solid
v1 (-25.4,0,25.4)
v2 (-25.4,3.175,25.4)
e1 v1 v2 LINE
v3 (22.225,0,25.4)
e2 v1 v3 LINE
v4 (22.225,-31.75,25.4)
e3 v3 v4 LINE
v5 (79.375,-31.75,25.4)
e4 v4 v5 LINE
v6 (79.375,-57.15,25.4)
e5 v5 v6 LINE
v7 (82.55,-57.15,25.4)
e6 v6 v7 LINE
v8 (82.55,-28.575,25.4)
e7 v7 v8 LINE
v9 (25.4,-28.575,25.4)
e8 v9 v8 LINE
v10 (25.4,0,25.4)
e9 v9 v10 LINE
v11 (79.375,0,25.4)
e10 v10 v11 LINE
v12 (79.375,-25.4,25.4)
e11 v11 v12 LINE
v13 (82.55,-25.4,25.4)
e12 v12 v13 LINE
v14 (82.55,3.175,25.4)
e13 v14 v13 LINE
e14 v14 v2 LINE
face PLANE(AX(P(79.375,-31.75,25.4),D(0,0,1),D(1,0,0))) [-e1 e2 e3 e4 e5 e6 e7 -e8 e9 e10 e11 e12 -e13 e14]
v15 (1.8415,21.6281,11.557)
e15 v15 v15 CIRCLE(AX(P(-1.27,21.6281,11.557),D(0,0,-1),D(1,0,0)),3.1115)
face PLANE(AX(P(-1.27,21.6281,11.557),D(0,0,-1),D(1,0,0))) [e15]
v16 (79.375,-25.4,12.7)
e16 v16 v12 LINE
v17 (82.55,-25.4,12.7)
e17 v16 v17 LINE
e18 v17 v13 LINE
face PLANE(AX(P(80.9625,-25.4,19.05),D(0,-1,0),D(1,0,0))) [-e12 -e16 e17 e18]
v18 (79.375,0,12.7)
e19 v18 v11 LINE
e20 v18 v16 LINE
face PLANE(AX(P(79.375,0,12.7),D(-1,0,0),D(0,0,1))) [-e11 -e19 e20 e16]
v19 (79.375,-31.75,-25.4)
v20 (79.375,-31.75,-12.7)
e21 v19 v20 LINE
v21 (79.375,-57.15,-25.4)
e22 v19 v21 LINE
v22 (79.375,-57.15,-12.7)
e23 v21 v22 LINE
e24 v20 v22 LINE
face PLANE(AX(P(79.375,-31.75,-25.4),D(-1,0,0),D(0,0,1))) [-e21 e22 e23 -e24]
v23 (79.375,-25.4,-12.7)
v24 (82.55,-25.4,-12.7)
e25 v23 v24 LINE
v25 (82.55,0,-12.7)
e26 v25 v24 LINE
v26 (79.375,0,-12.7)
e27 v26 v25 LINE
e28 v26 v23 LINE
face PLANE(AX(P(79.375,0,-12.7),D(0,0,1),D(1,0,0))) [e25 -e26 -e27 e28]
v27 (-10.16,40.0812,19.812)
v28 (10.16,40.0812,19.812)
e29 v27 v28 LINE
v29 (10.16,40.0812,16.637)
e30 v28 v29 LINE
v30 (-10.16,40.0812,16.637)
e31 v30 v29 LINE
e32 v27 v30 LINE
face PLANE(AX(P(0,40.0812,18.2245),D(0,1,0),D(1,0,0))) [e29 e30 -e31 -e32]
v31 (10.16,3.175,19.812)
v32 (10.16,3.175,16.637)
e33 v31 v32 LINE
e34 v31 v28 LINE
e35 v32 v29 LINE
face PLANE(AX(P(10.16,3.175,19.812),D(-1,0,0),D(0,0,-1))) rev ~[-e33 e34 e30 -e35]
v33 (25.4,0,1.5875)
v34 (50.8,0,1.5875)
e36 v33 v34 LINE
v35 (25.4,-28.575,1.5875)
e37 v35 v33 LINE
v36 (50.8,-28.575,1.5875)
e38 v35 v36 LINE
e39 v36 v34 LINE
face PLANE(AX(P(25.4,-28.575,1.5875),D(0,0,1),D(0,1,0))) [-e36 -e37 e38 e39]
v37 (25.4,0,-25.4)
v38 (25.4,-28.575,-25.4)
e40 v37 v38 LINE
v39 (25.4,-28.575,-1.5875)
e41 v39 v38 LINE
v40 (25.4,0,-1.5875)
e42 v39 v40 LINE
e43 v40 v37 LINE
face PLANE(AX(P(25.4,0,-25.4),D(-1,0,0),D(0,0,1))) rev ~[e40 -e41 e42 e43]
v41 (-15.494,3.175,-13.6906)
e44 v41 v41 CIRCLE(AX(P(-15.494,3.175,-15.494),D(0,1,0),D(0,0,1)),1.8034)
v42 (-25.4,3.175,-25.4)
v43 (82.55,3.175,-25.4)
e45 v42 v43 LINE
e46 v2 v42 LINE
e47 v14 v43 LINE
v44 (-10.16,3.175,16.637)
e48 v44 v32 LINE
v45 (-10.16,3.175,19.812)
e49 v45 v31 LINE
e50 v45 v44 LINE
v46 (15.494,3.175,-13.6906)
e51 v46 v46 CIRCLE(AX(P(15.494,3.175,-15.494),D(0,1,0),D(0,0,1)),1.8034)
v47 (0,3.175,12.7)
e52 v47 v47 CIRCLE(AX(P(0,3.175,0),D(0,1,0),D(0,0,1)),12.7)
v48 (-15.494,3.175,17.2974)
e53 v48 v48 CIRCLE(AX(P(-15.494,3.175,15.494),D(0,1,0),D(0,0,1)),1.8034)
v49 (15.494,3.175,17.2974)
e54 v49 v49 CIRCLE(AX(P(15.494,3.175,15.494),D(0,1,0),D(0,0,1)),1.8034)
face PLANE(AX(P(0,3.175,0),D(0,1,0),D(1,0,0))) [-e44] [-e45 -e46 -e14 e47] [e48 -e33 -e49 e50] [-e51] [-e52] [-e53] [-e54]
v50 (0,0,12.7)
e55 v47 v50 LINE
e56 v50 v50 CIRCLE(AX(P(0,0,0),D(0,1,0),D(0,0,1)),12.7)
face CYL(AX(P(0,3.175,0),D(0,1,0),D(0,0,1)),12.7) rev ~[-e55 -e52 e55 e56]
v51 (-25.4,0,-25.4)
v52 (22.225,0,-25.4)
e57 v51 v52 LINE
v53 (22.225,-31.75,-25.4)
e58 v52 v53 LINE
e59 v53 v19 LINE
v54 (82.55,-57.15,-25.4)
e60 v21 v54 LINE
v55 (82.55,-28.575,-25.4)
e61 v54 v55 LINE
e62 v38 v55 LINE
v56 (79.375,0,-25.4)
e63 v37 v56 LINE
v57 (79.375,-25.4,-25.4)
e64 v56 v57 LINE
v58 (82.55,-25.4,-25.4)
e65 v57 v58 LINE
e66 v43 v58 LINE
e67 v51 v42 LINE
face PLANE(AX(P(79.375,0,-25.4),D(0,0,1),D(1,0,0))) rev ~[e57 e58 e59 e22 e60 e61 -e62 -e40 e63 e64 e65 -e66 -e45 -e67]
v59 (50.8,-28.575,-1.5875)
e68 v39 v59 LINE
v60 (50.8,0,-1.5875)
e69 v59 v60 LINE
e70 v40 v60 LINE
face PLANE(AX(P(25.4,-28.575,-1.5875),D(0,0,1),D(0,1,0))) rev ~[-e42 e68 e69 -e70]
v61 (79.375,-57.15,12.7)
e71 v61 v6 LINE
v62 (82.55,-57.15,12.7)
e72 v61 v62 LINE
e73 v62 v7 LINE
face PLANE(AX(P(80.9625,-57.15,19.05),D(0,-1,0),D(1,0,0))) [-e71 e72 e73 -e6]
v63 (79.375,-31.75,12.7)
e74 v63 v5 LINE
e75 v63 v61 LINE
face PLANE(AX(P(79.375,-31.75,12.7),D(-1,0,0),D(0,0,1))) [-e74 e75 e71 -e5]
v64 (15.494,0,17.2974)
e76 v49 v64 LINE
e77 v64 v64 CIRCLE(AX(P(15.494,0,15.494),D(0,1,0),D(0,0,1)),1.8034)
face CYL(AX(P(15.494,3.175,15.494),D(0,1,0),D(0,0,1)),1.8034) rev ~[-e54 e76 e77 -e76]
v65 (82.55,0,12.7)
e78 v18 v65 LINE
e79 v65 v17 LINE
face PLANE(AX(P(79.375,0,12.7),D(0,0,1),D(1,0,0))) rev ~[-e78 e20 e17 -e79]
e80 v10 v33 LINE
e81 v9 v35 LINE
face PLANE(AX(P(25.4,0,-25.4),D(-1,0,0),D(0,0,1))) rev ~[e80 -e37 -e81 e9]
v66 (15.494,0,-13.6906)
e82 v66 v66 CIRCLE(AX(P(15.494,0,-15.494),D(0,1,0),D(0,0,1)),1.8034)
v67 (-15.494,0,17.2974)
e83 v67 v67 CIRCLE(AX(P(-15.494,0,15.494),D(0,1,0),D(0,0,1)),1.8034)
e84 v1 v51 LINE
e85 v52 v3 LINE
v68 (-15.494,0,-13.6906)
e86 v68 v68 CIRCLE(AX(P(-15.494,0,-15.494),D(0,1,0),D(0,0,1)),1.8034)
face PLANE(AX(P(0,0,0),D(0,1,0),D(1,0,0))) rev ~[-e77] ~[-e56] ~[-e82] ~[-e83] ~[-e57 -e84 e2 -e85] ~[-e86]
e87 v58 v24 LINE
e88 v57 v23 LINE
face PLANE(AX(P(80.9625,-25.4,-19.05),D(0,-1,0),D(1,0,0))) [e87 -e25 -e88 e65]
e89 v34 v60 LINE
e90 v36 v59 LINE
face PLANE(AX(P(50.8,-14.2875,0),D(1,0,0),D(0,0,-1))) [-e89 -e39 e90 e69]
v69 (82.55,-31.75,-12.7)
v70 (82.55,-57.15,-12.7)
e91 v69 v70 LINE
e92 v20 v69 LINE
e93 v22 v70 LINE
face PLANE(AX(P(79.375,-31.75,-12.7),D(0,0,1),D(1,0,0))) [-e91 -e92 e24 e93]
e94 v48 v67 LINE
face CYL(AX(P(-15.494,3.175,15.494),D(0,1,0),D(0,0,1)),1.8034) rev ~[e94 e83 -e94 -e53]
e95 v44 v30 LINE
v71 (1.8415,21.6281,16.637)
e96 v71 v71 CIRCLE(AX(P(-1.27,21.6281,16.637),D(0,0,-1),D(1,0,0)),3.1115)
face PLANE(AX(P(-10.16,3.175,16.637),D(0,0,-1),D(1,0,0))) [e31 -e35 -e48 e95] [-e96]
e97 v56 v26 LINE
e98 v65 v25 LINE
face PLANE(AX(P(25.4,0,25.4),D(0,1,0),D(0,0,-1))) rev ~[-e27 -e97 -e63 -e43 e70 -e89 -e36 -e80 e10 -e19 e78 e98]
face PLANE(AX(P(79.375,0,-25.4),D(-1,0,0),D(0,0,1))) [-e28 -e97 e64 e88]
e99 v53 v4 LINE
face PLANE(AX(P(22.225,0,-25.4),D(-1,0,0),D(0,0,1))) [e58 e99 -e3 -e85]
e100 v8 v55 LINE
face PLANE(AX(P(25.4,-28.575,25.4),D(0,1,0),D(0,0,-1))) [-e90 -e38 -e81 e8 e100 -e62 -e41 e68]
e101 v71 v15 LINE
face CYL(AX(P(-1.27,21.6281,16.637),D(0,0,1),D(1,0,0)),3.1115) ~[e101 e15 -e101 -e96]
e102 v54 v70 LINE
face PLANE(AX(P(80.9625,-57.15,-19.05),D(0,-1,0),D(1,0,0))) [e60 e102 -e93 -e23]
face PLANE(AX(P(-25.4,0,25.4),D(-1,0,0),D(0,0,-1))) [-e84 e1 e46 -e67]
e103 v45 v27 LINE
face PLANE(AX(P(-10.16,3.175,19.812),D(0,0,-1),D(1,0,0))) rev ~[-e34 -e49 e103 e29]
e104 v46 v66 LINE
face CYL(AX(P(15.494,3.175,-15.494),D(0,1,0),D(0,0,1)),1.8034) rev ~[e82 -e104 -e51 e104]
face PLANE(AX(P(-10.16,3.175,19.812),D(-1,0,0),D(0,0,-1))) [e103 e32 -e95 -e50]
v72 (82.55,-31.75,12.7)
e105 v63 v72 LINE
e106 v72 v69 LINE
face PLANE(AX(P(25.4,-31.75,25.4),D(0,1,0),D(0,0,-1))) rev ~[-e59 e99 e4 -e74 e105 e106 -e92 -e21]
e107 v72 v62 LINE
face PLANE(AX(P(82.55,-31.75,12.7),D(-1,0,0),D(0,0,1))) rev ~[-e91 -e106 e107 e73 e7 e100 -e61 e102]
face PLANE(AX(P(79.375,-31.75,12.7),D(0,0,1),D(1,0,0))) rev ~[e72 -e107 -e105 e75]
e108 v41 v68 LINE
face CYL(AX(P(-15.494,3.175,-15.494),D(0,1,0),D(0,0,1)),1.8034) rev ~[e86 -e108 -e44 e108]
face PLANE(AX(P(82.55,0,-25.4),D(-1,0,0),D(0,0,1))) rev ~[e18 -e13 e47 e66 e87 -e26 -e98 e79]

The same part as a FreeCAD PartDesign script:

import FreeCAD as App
import Part
import Sketcher
from FreeCAD import Vector
Q = App.Units.Quantity

doc = App.newDocument("Part")
body = doc.addObject("PartDesign::Body", "Body")

sketch1 = body.newObject("Sketcher::SketchObject", "Sketch")
sketch1.AttachmentSupport = (doc.getObject("XZ_Plane"), [""])
sketch1.MapMode = "FlatFace"
sketch1.addGeometry([
    Part.LineSegment(Vector(-25, -25, 0), Vector(-25, 25, 0)),
    Part.LineSegment(Vector(-25, 25, 0), Vector(25, 25, 0)),
    Part.LineSegment(Vector(25, 25, 0), Vector(25, -25, 0)),
    Part.LineSegment(Vector(25, -25, 0), Vector(-25, -25, 0)),
], False)
sketch1.addConstraint([
    Sketcher.Constraint("Coincident", 0, 2, 1, 1),
    Sketcher.Constraint("Coincident", 1, 2, 2, 1),
    Sketcher.Constraint("Coincident", 2, 2, 3, 1),
    Sketcher.Constraint("Coincident", 3, 2, 0, 1),
    Sketcher.Constraint("Vertical", 0),
    Sketcher.Constraint("Horizontal", 1),
    Sketcher.Constraint("Vertical", 2),
    Sketcher.Constraint("Horizontal", 3),
    Sketcher.Constraint("Symmetric", 0, 2, 2, 2, -1, 1),
    Sketcher.Constraint("Equal", 3, 0),
    Sketcher.Constraint("DistanceX", 1, 1, 1, 2, Q("2 in")),
])
pad1 = body.newObject("PartDesign::Pad", "Pad")
pad1.Profile = sketch1
pad1.Length = Q("0.125 in")
pad1.Reversed = True

sketch2 = body.newObject("Sketcher::SketchObject", "Sketch001")
sketch2.AttachmentSupport = (doc.getObject("XZ_Plane"), [""])
sketch2.MapMode = "FlatFace"
sketch2.AttachmentOffset = App.Placement(Vector(0, 0, -0.125 * 25.4), App.Rotation())
sketch2.addGeometry([
    Part.Circle(Vector(0, 0, 0), Vector(0, 0, 1), 12.7),
    Part.Circle(Vector(-15.5, -15.5, 0), Vector(0, 0, 1), 1.8),
    Part.Circle(Vector(15.5, -15.5, 0), Vector(0, 0, 1), 1.8),
    Part.Circle(Vector(15.5, 15.5, 0), Vector(0, 0, 1), 1.8),
    Part.Circle(Vector(-15.5, 15.5, 0), Vector(0, 0, 1), 1.8),
], False)
sketch2.addConstraint([
    Sketcher.Constraint("Coincident", 0, 3, -1, 1),
    Sketcher.Constraint("Equal", 1, 2),
    Sketcher.Constraint("Equal", 2, 3),
    Sketcher.Constraint("Equal", 3, 4),
    Sketcher.Constraint("Symmetric", 1, 3, 3, 3, -1, 1),
    Sketcher.Constraint("Symmetric", 2, 3, 4, 3, -1, 1),
    Sketcher.Constraint("Symmetric", 1, 3, 2, 3, -2),
    Sketcher.Constraint("Diameter", 0, Q("1 in")),
    Sketcher.Constraint("Diameter", 1, Q("0.142 in")),
    Sketcher.Constraint("DistanceX", 1, 3, -1, 1, Q("0.61 in")),
    Sketcher.Constraint("DistanceY", 1, 3, -1, 1, Q("0.61 in")),
])
pocket1 = body.newObject("PartDesign::Pocket", "Pocket")
pocket1.Profile = sketch2
pocket1.Type = "ThroughAll"
pocket1.Reversed = True

sketch3 = body.newObject("Sketcher::SketchObject", "Sketch002")
sketch3.AttachmentSupport = (doc.getObject("XZ_Plane"), [""])
sketch3.MapMode = "FlatFace"
sketch3.AttachmentOffset = App.Placement(Vector(0, 0, -0.125 * 25.4), App.Rotation())
sketch3.addGeometry([
    Part.LineSegment(Vector(-10.2, 16.6, 0), Vector(-10.2, 19.8, 0)),
    Part.LineSegment(Vector(-10.2, 19.8, 0), Vector(10.2, 19.8, 0)),
    Part.LineSegment(Vector(10.2, 19.8, 0), Vector(10.2, 16.6, 0)),
    Part.LineSegment(Vector(10.2, 16.6, 0), Vector(-10.2, 16.6, 0)),
], False)
sketch3.addConstraint([
    Sketcher.Constraint("Coincident", 0, 2, 1, 1),
    Sketcher.Constraint("Coincident", 1, 2, 2, 1),
    Sketcher.Constraint("Coincident", 2, 2, 3, 1),
    Sketcher.Constraint("Coincident", 3, 2, 0, 1),
    Sketcher.Constraint("Vertical", 0),
    Sketcher.Constraint("Horizontal", 1),
    Sketcher.Constraint("Vertical", 2),
    Sketcher.Constraint("Horizontal", 3),
    Sketcher.Constraint("DistanceX", 1, 1, 1, 2, Q("0.8 in")),
    Sketcher.Constraint("DistanceX", 0, 2, -1, 1, Q("0.4 in")),
    Sketcher.Constraint("DistanceY", 0, 1, 0, 2, Q("0.125 in")),
    Sketcher.Constraint("DistanceY", -1, 1, 0, 2, Q("0.78 in")),
])
pad2 = body.newObject("PartDesign::Pad", "Pad001")
pad2.Profile = sketch3
pad2.Length = Q("1.453 in")
pad2.Reversed = True

sketch4 = body.newObject("Sketcher::SketchObject", "Sketch003")
sketch4.AttachmentSupport = (doc.getObject("XY_Plane"), [""])
sketch4.MapMode = "FlatFace"
sketch4.AttachmentOffset = App.Placement(Vector(0, 0, 0.655 * 25.4), App.Rotation())
sketch4.addGeometry(Part.Circle(Vector(-1.3, 21.6, 0), Vector(0, 0, 1), 3.1), False)
sketch4.addConstraint([
    Sketcher.Constraint("Diameter", 0, Q("0.245 in")),
    Sketcher.Constraint("DistanceX", 0, 3, -1, 1, Q("0.05 in")),
    Sketcher.Constraint("DistanceY", -1, 1, 0, 3, Q("0.8515 in")),
])
pad3 = body.newObject("PartDesign::Pad", "Pad002")
pad3.Profile = sketch4
pad3.Length = Q("0.2 in")
pad3.Reversed = True

sketch5 = body.newObject("Sketcher::SketchObject", "Sketch004")
sketch5.AttachmentSupport = (doc.getObject("XZ_Plane"), [""])
sketch5.MapMode = "FlatFace"
sketch5.addGeometry([
    Part.LineSegment(Vector(22.2, 25.4, 0), Vector(22.2, -25.4, 0)),
    Part.LineSegment(Vector(22.2, -25.4, 0), Vector(25.4, -25.4, 0)),
    Part.LineSegment(Vector(25.4, -25.4, 0), Vector(25.4, 25.4, 0)),
    Part.LineSegment(Vector(25.4, 25.4, 0), Vector(22.2, 25.4, 0)),
], False)
sketch5.addConstraint([
    Sketcher.Constraint("Coincident", 0, 2, 1, 1),
    Sketcher.Constraint("Coincident", 1, 2, 2, 1),
    Sketcher.Constraint("Coincident", 2, 2, 3, 1),
    Sketcher.Constraint("Coincident", 3, 2, 0, 1),
    Sketcher.Constraint("Vertical", 0),
    Sketcher.Constraint("Horizontal", 1),
    Sketcher.Constraint("Vertical", 2),
    Sketcher.Constraint("Horizontal", 3),
    Sketcher.Constraint("DistanceY", 0, 2, 0, 1, Q("2 in")),
    Sketcher.Constraint("DistanceY", 0, 2, -1, 1, Q("1 in")),
    Sketcher.Constraint("DistanceX", -1, 1, 1, 2, Q("1 in")),
    Sketcher.Constraint("DistanceX", 1, 1, 1, 2, Q("0.125 in")),
])
pad4 = body.newObject("PartDesign::Pad", "Pad003")
pad4.Profile = sketch5
pad4.Length = Q("1.25 in")

sketch6 = body.newObject("Sketcher::SketchObject", "Sketch005")
sketch6.AttachmentSupport = (doc.getObject("YZ_Plane"), [""])
sketch6.MapMode = "FlatFace"
sketch6.AttachmentOffset = App.Placement(Vector(0, 0, 1 * 25.4), App.Rotation())
sketch6.addGeometry([
    Part.LineSegment(Vector(-28.6, 25.4, 0), Vector(-31.8, 25.4, 0)),
    Part.LineSegment(Vector(-31.8, 25.4, 0), Vector(-31.8, -25.4, 0)),
    Part.LineSegment(Vector(-31.8, -25.4, 0), Vector(-28.6, -25.4, 0)),
    Part.LineSegment(Vector(-28.6, -25.4, 0), Vector(-28.6, 25.4, 0)),
    Part.LineSegment(Vector(3.2, 25.4, 0), Vector(0, 25.4, 0)),
    Part.LineSegment(Vector(0, 25.4, 0), Vector(0, -25.4, 0)),
    Part.LineSegment(Vector(0, -25.4, 0), Vector(3.2, -25.4, 0)),
    Part.LineSegment(Vector(3.2, -25.4, 0), Vector(3.2, 25.4, 0)),
], False)
sketch6.addConstraint([
    Sketcher.Constraint("Coincident", 0, 2, 1, 1),
    Sketcher.Constraint("Coincident", 1, 2, 2, 1),
    Sketcher.Constraint("Coincident", 2, 2, 3, 1),
    Sketcher.Constraint("Coincident", 3, 2, 0, 1),
    Sketcher.Constraint("Coincident", 4, 2, 5, 1),
    Sketcher.Constraint("Coincident", 5, 2, 6, 1),
    Sketcher.Constraint("Coincident", 6, 2, 7, 1),
    Sketcher.Constraint("Coincident", 7, 2, 4, 1),
    Sketcher.Constraint("Horizontal", 0),
    Sketcher.Constraint("Vertical", 1),
    Sketcher.Constraint("Horizontal", 2),
    Sketcher.Constraint("Vertical", 3),
    Sketcher.Constraint("Horizontal", 4),
    Sketcher.Constraint("Vertical", 5),
    Sketcher.Constraint("Horizontal", 6),
    Sketcher.Constraint("Vertical", 7),
    Sketcher.Constraint("Symmetric", 4, 2, 5, 2, -1, 1),
    Sketcher.Constraint("Horizontal", 3, 2, 4, 2),
    Sketcher.Constraint("Horizontal", 2, 2, 5, 2),
    Sketcher.Constraint("Equal", 2, 4),
    Sketcher.Constraint("DistanceY", 1, 2, 1, 1, Q("2 in")),
    Sketcher.Constraint("DistanceX", 0, 2, 0, 1, Q("0.125 in")),
    Sketcher.Constraint("DistanceX", 0, 2, -1, 1, Q("1.25 in")),
])
pad5 = body.newObject("PartDesign::Pad", "Pad004")
pad5.Profile = sketch6
pad5.Length = Q("2.25 in")

sketch7 = body.newObject("Sketcher::SketchObject", "Sketch006")
sketch7.AttachmentSupport = (doc.getObject("XZ_Plane"), [""])
sketch7.MapMode = "FlatFace"
sketch7.AttachmentOffset = App.Placement(Vector(0, 0, 1.25 * 25.4), App.Rotation())
sketch7.addGeometry([
    Part.LineSegment(Vector(79.4, 25.4, 0), Vector(79.4, 12.7, 0)),
    Part.LineSegment(Vector(79.4, 12.7, 0), Vector(82.5, 12.7, 0)),
    Part.LineSegment(Vector(82.5, 12.7, 0), Vector(82.5, 25.4, 0)),
    Part.LineSegment(Vector(82.5, 25.4, 0), Vector(79.4, 25.4, 0)),
    Part.LineSegment(Vector(79.4, -12.7, 0), Vector(79.4, -25.4, 0)),
    Part.LineSegment(Vector(79.4, -25.4, 0), Vector(82.5, -25.4, 0)),
    Part.LineSegment(Vector(82.5, -25.4, 0), Vector(82.5, -12.7, 0)),
    Part.LineSegment(Vector(82.5, -12.7, 0), Vector(79.4, -12.7, 0)),
], False)
sketch7.addConstraint([
    Sketcher.Constraint("Coincident", 0, 2, 1, 1),
    Sketcher.Constraint("Coincident", 1, 2, 2, 1),
    Sketcher.Constraint("Coincident", 2, 2, 3, 1),
    Sketcher.Constraint("Coincident", 3, 2, 0, 1),
    Sketcher.Constraint("Coincident", 4, 2, 5, 1),
    Sketcher.Constraint("Coincident", 5, 2, 6, 1),
    Sketcher.Constraint("Coincident", 6, 2, 7, 1),
    Sketcher.Constraint("Coincident", 7, 2, 4, 1),
    Sketcher.Constraint("Vertical", 0),
    Sketcher.Constraint("Horizontal", 1),
    Sketcher.Constraint("Vertical", 2),
    Sketcher.Constraint("Horizontal", 3),
    Sketcher.Constraint("Vertical", 4),
    Sketcher.Constraint("Horizontal", 5),
    Sketcher.Constraint("Vertical", 6),
    Sketcher.Constraint("Horizontal", 7),
    Sketcher.Constraint("Symmetric", 3, 2, 4, 2, -1),
    Sketcher.Constraint("Symmetric", 1, 2, 6, 2, -1),
    Sketcher.Constraint("DistanceY", 0, 2, 0, 1, Q("0.5 in")),
    Sketcher.Constraint("DistanceY", -1, 1, 2, 2, Q("1 in")),
    Sketcher.Constraint("DistanceX", 1, 1, 1, 2, Q("0.125 in")),
    Sketcher.Constraint("DistanceX", -1, 1, 1, 2, Q("3.25 in")),
])
pad6 = body.newObject("PartDesign::Pad", "Pad005")
pad6.Profile = sketch7
pad6.Length = Q("1 in")

sketch8 = body.newObject("Sketcher::SketchObject", "Sketch007")
sketch8.AttachmentSupport = (doc.getObject("XZ_Plane"), [""])
sketch8.MapMode = "FlatFace"
sketch8.addGeometry([
    Part.LineSegment(Vector(79.4, -12.7, 0), Vector(79.4, -25.4, 0)),
    Part.LineSegment(Vector(79.4, -25.4, 0), Vector(82.5, -25.4, 0)),
    Part.LineSegment(Vector(82.5, -25.4, 0), Vector(82.5, -12.7, 0)),
    Part.LineSegment(Vector(82.5, -12.7, 0), Vector(79.4, -12.7, 0)),
    Part.LineSegment(Vector(79.4, 25.4, 0), Vector(79.4, 12.7, 0)),
    Part.LineSegment(Vector(79.4, 12.7, 0), Vector(82.5, 12.7, 0)),
    Part.LineSegment(Vector(82.5, 12.7, 0), Vector(82.5, 25.4, 0)),
    Part.LineSegment(Vector(82.5, 25.4, 0), Vector(79.4, 25.4, 0)),
], False)
sketch8.addConstraint([
    Sketcher.Constraint("Coincident", 0, 2, 1, 1),
    Sketcher.Constraint("Coincident", 1, 2, 2, 1),
    Sketcher.Constraint("Coincident", 2, 2, 3, 1),
    Sketcher.Constraint("Coincident", 3, 2, 0, 1),
    Sketcher.Constraint("Coincident", 4, 2, 5, 1),
    Sketcher.Constraint("Coincident", 5, 2, 6, 1),
    Sketcher.Constraint("Coincident", 6, 2, 7, 1),
    Sketcher.Constraint("Coincident", 7, 2, 4, 1),
    Sketcher.Constraint("Vertical", 0),
    Sketcher.Constraint("Horizontal", 1),
    Sketcher.Constraint("Vertical", 2),
    Sketcher.Constraint("Horizontal", 3),
    Sketcher.Constraint("Vertical", 4),
    Sketcher.Constraint("Horizontal", 5),
    Sketcher.Constraint("Vertical", 6),
    Sketcher.Constraint("Horizontal", 7),
    Sketcher.Constraint("Symmetric", 3, 2, 4, 2, -1),
    Sketcher.Constraint("Symmetric", 1, 2, 6, 2, -1),
    Sketcher.Constraint("DistanceY", 0, 2, 0, 1, Q("0.5 in")),
    Sketcher.Constraint("DistanceY", 0, 2, -1, 1, Q("1 in")),
    Sketcher.Constraint("DistanceX", 1, 1, 1, 2, Q("0.125 in")),
    Sketcher.Constraint("DistanceX", -1, 1, 1, 2, Q("3.25 in")),
])
pad7 = body.newObject("PartDesign::Pad", "Pad006")
pad7.Profile = sketch8
pad7.Length = Q("1 in")

sketch9 = body.newObject("Sketcher::SketchObject", "Sketch008")
sketch9.AttachmentSupport = (doc.getObject("YZ_Plane"), [""])
sketch9.MapMode = "FlatFace"
sketch9.AttachmentOffset = App.Placement(Vector(0, 0, 1 * 25.4), App.Rotation())
sketch9.addGeometry([
    Part.LineSegment(Vector(0, 1.6, 0), Vector(-28.6, 1.6, 0)),
    Part.LineSegment(Vector(-28.6, 1.6, 0), Vector(-28.6, -1.6, 0)),
    Part.LineSegment(Vector(-28.6, -1.6, 0), Vector(0, -1.6, 0)),
    Part.LineSegment(Vector(0, -1.6, 0), Vector(0, 1.6, 0)),
], False)
sketch9.addConstraint([
    Sketcher.Constraint("Coincident", 0, 2, 1, 1),
    Sketcher.Constraint("Coincident", 1, 2, 2, 1),
    Sketcher.Constraint("Coincident", 2, 2, 3, 1),
    Sketcher.Constraint("Coincident", 3, 2, 0, 1),
    Sketcher.Constraint("Horizontal", 0),
    Sketcher.Constraint("Vertical", 1),
    Sketcher.Constraint("Horizontal", 2),
    Sketcher.Constraint("Vertical", 3),
    Sketcher.Constraint("Symmetric", 2, 2, 3, 2, -1, 1),
    Sketcher.Constraint("DistanceX", 0, 2, 0, 1, Q("1.125 in")),
    Sketcher.Constraint("DistanceY", 1, 2, 1, 1, Q("0.125 in")),
])
pad8 = body.newObject("PartDesign::Pad", "Pad007")
pad8.Profile = sketch9
pad8.Length = Q("1 in")

doc.recompute()
